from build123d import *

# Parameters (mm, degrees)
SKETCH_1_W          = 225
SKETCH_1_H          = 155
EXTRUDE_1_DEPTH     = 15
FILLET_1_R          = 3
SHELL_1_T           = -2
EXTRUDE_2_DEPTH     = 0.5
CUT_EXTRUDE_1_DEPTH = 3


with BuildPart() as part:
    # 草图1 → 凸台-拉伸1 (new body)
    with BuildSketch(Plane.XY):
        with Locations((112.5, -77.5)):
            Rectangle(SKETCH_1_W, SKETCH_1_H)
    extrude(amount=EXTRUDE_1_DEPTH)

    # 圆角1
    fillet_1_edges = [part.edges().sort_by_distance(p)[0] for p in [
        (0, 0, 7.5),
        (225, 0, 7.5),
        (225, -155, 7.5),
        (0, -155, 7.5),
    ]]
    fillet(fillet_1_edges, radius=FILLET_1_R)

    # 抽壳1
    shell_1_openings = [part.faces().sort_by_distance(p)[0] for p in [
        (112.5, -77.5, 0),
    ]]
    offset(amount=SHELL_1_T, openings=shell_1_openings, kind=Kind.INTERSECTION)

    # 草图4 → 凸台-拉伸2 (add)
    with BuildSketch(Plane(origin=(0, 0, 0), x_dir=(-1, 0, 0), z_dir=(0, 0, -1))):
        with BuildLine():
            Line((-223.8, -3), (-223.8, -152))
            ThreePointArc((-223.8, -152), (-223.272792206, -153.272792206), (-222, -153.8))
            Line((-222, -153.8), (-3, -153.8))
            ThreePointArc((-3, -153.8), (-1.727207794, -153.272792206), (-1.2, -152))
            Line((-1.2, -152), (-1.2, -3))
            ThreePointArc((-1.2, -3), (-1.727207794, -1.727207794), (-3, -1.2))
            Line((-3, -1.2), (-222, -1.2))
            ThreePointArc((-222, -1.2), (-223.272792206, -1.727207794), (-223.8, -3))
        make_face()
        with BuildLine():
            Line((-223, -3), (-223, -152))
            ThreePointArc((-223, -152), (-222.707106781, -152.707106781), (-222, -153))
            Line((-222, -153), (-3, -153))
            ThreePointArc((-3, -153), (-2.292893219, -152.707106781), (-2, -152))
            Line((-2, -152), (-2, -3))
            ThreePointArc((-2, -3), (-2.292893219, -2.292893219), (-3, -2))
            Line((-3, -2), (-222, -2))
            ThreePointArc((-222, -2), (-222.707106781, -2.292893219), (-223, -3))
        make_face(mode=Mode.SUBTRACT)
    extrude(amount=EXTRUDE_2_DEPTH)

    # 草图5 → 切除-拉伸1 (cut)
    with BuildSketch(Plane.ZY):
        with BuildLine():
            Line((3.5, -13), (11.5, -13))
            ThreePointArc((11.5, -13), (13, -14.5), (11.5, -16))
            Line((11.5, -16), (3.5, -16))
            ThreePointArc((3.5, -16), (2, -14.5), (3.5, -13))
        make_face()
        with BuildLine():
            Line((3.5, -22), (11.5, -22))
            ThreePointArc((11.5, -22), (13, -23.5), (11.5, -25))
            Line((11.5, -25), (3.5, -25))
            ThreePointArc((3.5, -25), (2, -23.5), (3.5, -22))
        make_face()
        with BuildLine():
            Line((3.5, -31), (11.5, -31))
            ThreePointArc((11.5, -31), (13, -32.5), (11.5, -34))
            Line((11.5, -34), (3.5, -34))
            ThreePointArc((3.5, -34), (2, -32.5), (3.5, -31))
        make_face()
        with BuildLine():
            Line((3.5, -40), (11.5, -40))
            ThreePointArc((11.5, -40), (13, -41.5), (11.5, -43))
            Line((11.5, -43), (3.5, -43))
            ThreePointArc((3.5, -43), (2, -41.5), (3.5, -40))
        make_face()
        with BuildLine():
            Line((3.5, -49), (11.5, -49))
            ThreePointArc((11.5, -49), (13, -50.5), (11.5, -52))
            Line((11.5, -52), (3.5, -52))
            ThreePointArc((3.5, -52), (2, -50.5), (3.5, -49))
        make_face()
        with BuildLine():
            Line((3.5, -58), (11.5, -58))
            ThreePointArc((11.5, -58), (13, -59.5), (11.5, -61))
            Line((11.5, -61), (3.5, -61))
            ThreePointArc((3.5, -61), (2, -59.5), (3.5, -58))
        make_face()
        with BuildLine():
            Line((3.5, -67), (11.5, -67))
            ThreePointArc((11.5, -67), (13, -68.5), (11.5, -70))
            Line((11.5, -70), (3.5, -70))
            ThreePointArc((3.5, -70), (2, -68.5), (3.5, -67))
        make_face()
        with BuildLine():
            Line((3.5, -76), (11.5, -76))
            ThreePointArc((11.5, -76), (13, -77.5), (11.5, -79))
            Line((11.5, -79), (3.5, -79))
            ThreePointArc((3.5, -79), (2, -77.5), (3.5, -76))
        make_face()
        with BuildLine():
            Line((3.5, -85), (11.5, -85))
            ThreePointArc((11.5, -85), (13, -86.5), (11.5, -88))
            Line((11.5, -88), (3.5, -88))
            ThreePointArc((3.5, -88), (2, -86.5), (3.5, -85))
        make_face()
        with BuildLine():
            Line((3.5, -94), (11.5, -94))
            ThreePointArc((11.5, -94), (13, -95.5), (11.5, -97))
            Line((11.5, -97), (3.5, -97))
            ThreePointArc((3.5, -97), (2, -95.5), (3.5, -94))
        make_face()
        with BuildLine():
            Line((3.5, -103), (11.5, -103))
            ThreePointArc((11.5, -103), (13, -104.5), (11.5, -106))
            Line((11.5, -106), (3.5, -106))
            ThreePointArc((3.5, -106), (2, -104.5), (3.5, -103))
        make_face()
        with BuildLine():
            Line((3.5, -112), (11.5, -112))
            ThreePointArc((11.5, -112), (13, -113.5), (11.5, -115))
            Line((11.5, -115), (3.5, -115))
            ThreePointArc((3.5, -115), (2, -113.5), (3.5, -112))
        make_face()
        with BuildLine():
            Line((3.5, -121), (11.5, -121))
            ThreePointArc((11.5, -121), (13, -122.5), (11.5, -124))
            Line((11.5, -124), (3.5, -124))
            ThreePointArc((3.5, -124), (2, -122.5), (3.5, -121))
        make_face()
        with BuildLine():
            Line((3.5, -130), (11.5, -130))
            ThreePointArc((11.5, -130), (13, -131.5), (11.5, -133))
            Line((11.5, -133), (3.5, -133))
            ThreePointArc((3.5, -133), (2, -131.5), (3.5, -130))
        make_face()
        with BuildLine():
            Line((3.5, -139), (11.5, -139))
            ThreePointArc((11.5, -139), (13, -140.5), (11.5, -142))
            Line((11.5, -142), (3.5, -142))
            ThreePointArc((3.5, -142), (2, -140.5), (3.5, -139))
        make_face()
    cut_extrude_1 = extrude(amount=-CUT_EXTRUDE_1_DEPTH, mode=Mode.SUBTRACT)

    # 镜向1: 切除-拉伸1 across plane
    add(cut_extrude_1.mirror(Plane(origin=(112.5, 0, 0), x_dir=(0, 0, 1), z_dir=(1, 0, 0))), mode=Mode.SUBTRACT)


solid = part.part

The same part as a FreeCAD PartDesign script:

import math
import FreeCAD as App
import Part
import Sketcher
from FreeCAD import Vector
Q = App.Units.Quantity


def edges_at(feature, points):
    """Names of the edges that pass closest to the given points."""
    edges = feature.Shape.Edges
    near = lambda p: min(range(len(edges)), key=lambda i: edges[i].distToShape(Part.Vertex(*p))[0])
    return sorted({f"Edge{near(p) + 1}" for p in points})


def faces_at(feature, points):
    """Names of the faces that lie closest to the given points."""
    faces = feature.Shape.Faces
    near = lambda p: min(range(len(faces)), key=lambda i: faces[i].distToShape(Part.Vertex(*p))[0])
    return sorted({f"Face{near(p) + 1}" for p in points})

doc = App.newDocument("Part")
params = doc.addObject("Spreadsheet::Sheet", "Params")
for row, (alias, value) in enumerate([
    ("sketch1_width", "225 mm"),
    ("sketch1_height", "155 mm"),
    ("pad1_length", "15 mm"),
    ("fillet_radius", "3 mm"),
    ("thickness_wall", "2 mm"),
    ("sketch2_radius", "1 mm"),
    ("sketch2_radius2", "1.8 mm"),
    ("sketch2_width", "219 mm"),
    ("sketch2_height", "149 mm"),
    ("pad2_length", "0.5 mm"),
    ("sketch3_radius", "1.5 mm"),
    ("sketch3_height", "8 mm"),
    ("pocket1_length", "3 mm"),
], start=1):
    params.set(f"A{row}", alias)
    params.set(f"B{row}", "=" + value)
    params.setAlias(f"B{row}", alias)

body = doc.addObject("PartDesign::Body", "Body")

sketch1 = doc.addObject("Sketcher::SketchObject", "Sketch")
body.addObject(sketch1)
sketch1.AttachmentSupport = (doc.XY_Plane, [""])
sketch1.MapMode = "FlatFace"
sketch1.addGeometry(Part.LineSegment(Vector(0, 0, 0), Vector(0, -155, 0)), False)
sketch1.addGeometry(Part.LineSegment(Vector(0, -155, 0), Vector(225, -155, 0)), False)
sketch1.addGeometry(Part.LineSegment(Vector(225, -155, 0), Vector(225, 0, 0)), False)
sketch1.addGeometry(Part.LineSegment(Vector(225, 0, 0), Vector(0, 0, 0)), False)
sketch1.addConstraint(Sketcher.Constraint("Coincident", 0, 2, 1, 1))
sketch1.addConstraint(Sketcher.Constraint("Coincident", 1, 2, 2, 1))
sketch1.addConstraint(Sketcher.Constraint("Coincident", 2, 2, 3, 1))
sketch1.addConstraint(Sketcher.Constraint("Coincident", 3, 2, 0, 1))
sketch1.addConstraint(Sketcher.Constraint("Vertical", 0))
sketch1.addConstraint(Sketcher.Constraint("Horizontal", 1))
sketch1.addConstraint(Sketcher.Constraint("Vertical", 2))
sketch1.addConstraint(Sketcher.Constraint("Horizontal", 3))
sketch1.addConstraint(Sketcher.Constraint("Coincident", 3, 2, -1, 1))
sketch1.addConstraint(Sketcher.Constraint("DistanceX", 1, 1, 1, 2, Q("225 mm")))
sketch1.addConstraint(Sketcher.Constraint("DistanceY", 0, 2, 0, 1, Q("155 mm")))
sketch1.setExpression("Constraints[9]", "Params.sketch1_width")
sketch1.setExpression("Constraints[10]", "Params.sketch1_height")
pad1 = doc.addObject("PartDesign::Pad", "Pad")
body.addObject(pad1)
pad1.Profile = sketch1
pad1.setExpression("Length", "Params.pad1_length")
doc.recompute()

fillet = doc.addObject("PartDesign::Fillet", "Fillet")
body.addObject(fillet)
fillet.Base = (pad1, edges_at(pad1, [
    (0, 0, 7.5),
    (225, 0, 7.5),
    (225, -155, 7.5),
    (0, -155, 7.5),
]))
fillet.setExpression("Radius", "Params.fillet_radius")
doc.recompute()

thickness = doc.addObject("PartDesign::Thickness", "Thickness")
body.addObject(thickness)
thickness.Base = (fillet, faces_at(fillet, [(112.5, -77.5, 0)]))
thickness.setExpression("Value", "Params.thickness_wall")
thickness.Reversed = True
thickness.Join = "Intersection"

sketch2 = doc.addObject("Sketcher::SketchObject", "Sketch001")
body.addObject(sketch2)
sketch2.AttachmentSupport = (doc.XY_Plane, [""])
sketch2.MapMode = "FlatFace"
sketch2.addGeometry(Part.LineSegment(Vector(223.8, -3, 0), Vector(223.8, -152, 0)), False)
sketch2.addGeometry(Part.ArcOfCircle(Part.Circle(Vector(222, -152, 0), Vector(0, 0, 1), 1.8), math.radians(-90), math.radians(0)), False)
sketch2.addGeometry(Part.LineSegment(Vector(222, -153.8, 0), Vector(3, -153.8, 0)), False)
sketch2.addGeometry(Part.ArcOfCircle(Part.Circle(Vector(3, -152, 0), Vector(0, 0, 1), 1.8), math.radians(180), math.radians(270)), False)
sketch2.addGeometry(Part.LineSegment(Vector(1.2, -152, 0), Vector(1.2, -3, 0)), False)
sketch2.addGeometry(Part.ArcOfCircle(Part.Circle(Vector(3, -3, 0), Vector(0, 0, 1), 1.8), math.radians(90), math.radians(180)), False)
sketch2.addGeometry(Part.LineSegment(Vector(3, -1.2, 0), Vector(222, -1.2, 0)), False)
sketch2.addGeometry(Part.ArcOfCircle(Part.Circle(Vector(222, -3, 0), Vector(0, 0, 1), 1.8), math.radians(0), math.radians(90)), False)
sketch2.addGeometry(Part.LineSegment(Vector(223, -152, 0), Vector(223, -3, 0)), False)
sketch2.addGeometry(Part.ArcOfCircle(Part.Circle(Vector(222, -3, 0), Vector(0, 0, 1), 1), math.radians(0), math.radians(90)), False)
sketch2.addGeometry(Part.LineSegment(Vector(222, -2, 0), Vector(3, -2, 0)), False)
sketch2.addGeometry(Part.ArcOfCircle(Part.Circle(Vector(3, -3, 0), Vector(0, 0, 1), 1), math.radians(90), math.radians(180)), False)
sketch2.addGeometry(Part.LineSegment(Vector(2, -3, 0), Vector(2, -152, 0)), False)
sketch2.addGeometry(Part.ArcOfCircle(Part.Circle(Vector(3, -152, 0), Vector(0, 0, 1), 1), math.radians(-180), math.radians(-90)), False)
sketch2.addGeometry(Part.LineSegment(Vector(3, -153, 0), Vector(222, -153, 0)), False)
sketch2.addGeometry(Part.ArcOfCircle(Part.Circle(Vector(222, -152, 0), Vector(0, 0, 1), 1), math.radians(-90), math.radians(0)), False)
sketch2.addConstraint(Sketcher.Constraint("Tangent", 0, 2, 1, 2))
sketch2.addConstraint(Sketcher.Constraint("Tangent", 1, 1, 2, 1))
sketch2.addConstraint(Sketcher.Constraint("Tangent", 2, 2, 3, 2))
sketch2.addConstraint(Sketcher.Constraint("Tangent", 3, 1, 4, 1))
sketch2.addConstraint(Sketcher.Constraint("Tangent", 4, 2, 5, 2))
sketch2.addConstraint(Sketcher.Constraint("Tangent", 5, 1, 6, 1))
sketch2.addConstraint(Sketcher.Constraint("Tangent", 6, 2, 7, 2))
sketch2.addConstraint(Sketcher.Constraint("Tangent", 7, 1, 0, 1))
sketch2.addConstraint(Sketcher.Constraint("Tangent", 8, 2, 9, 1))
sketch2.addConstraint(Sketcher.Constraint("Tangent", 9, 2, 10, 1))
sketch2.addConstraint(Sketcher.Constraint("Tangent", 10, 2, 11, 1))
sketch2.addConstraint(Sketcher.Constraint("Tangent", 11, 2, 12, 1))
sketch2.addConstraint(Sketcher.Constraint("Tangent", 12, 2, 13, 1))
sketch2.addConstraint(Sketcher.Constraint("Tangent", 13, 2, 14, 1))
sketch2.addConstraint(Sketcher.Constraint("Tangent", 14, 2, 15, 1))
sketch2.addConstraint(Sketcher.Constraint("Tangent", 15, 2, 8, 1))
sketch2.addConstraint(Sketcher.Constraint("Vertical", 0))
sketch2.addConstraint(Sketcher.Constraint("Horizontal", 2))
sketch2.addConstraint(Sketcher.Constraint("Vertical", 4))
sketch2.addConstraint(Sketcher.Constraint("Horizontal", 6))
sketch2.addConstraint(Sketcher.Constraint("Vertical", 8))
sketch2.addConstraint(Sketcher.Constraint("Horizontal", 10))
sketch2.addConstraint(Sketcher.Constraint("Vertical", 12))
sketch2.addConstraint(Sketcher.Constraint("Horizontal", 14))
sketch2.addConstraint(Sketcher.Constraint("Coincident", 9, 3, 7, 3))
sketch2.addConstraint(Sketcher.Constraint("Coincident", 11, 3, 5, 3))
sketch2.addConstraint(Sketcher.Constraint("Coincident", 13, 3, 3, 3))
sketch2.addConstraint(Sketcher.Constraint("Equal", 1, 3))
sketch2.addConstraint(Sketcher.Constraint("Equal", 3, 5))
sketch2.addConstraint(Sketcher.Constraint("Equal", 5, 7))
sketch2.addConstraint(Sketcher.Constraint("Equal", 13, 15))
sketch2.addConstraint(Sketcher.Constraint("Radius", 9, Q("1 mm")))
sketch2.addConstraint(Sketcher.Constraint("Radius", 1, Q("1.8 mm")))
sketch2.addConstraint(Sketcher.Constraint("DistanceX", 2, 2, 2, 1, Q("219 mm")))
sketch2.addConstraint(Sketcher.Constraint("DistanceY", 0, 2, 0, 1, Q("149 mm")))
sketch2.addConstraint(Sketcher.Constraint("DistanceX", -1, 1, 1, 3, Q("222 mm")))
sketch2.addConstraint(Sketcher.Constraint("DistanceY", 1, 3, -1, 1, Q("152 mm")))
sketch2.setExpression("Constraints[31]", "Params.sketch2_radius")
sketch2.setExpression("Constraints[32]", "Params.sketch2_radius2")
sketch2.setExpression("Constraints[33]", "Params.sketch2_width")
sketch2.setExpression("Constraints[34]", "Params.sketch2_height")
pad2 = doc.addObject("PartDesign::Pad", "Pad001")
body.addObject(pad2)
pad2.Profile = sketch2
pad2.setExpression("Length", "Params.pad2_length")
pad2.Reversed = True

sketch3 = doc.addObject("Sketcher::SketchObject", "Sketch002")
body.addObject(sketch3)
sketch3.AttachmentSupport = (doc.YZ_Plane, [""])
sketch3.MapMode = "FlatFace"
sketch3.addGeometry(Part.LineSegment(Vector(-13, 11.5, 0), Vector(-13, 3.5, 0)), False)
sketch3.addGeometry(Part.ArcOfCircle(Part.Circle(Vector(-14.5, 3.5, 0), Vector(0, 0, 1), 1.5), math.radians(180), math.radians(360)), False)
sketch3.addGeometry(Part.LineSegment(Vector(-16, 3.5, 0), Vector(-16, 11.5, 0)), False)
sketch3.addGeometry(Part.ArcOfCircle(Part.Circle(Vector(-14.5, 11.5, 0), Vector(0, 0, 1), 1.5), math.radians(0), math.radians(180)), False)
sketch3.addGeometry(Part.LineSegment(Vector(-22, 11.5, 0), Vector(-22, 3.5, 0)), False)
sketch3.addGeometry(Part.ArcOfCircle(Part.Circle(Vector(-23.5, 3.5, 0), Vector(0, 0, 1), 1.5), math.radians(180), math.radians(360)), False)
sketch3.addGeometry(Part.LineSegment(Vector(-25, 3.5, 0), Vector(-25, 11.5, 0)), False)
sketch3.addGeometry(Part.ArcOfCircle(Part.Circle(Vector(-23.5, 11.5, 0), Vector(0, 0, 1), 1.5), math.radians(0), math.radians(180)), False)
sketch3.addGeometry(Part.LineSegment(Vector(-31, 11.5, 0), Vector(-31, 3.5, 0)), False)
sketch3.addGeometry(Part.ArcOfCircle(Part.Circle(Vector(-32.5, 3.5, 0), Vector(0, 0, 1), 1.5), math.radians(180), math.radians(360)), False)
sketch3.addGeometry(Part.LineSegment(Vector(-34, 3.5, 0), Vector(-34, 11.5, 0)), False)
sketch3.addGeometry(Part.ArcOfCircle(Part.Circle(Vector(-32.5, 11.5, 0), Vector(0, 0, 1), 1.5), math.radians(0), math.radians(180)), False)
sketch3.addGeometry(Part.LineSegment(Vector(-40, 11.5, 0), Vector(-40, 3.5, 0)), False)
sketch3.addGeometry(Part.ArcOfCircle(Part.Circle(Vector(-41.5, 3.5, 0), Vector(0, 0, 1), 1.5), math.radians(180), math.radians(360)), False)
sketch3.addGeometry(Part.LineSegment(Vector(-43, 3.5, 0), Vector(-43, 11.5, 0)), False)
sketch3.addGeometry(Part.ArcOfCircle(Part.Circle(Vector(-41.5, 11.5, 0), Vector(0, 0, 1), 1.5), math.radians(0), math.radians(180)), False)
sketch3.addGeometry(Part.LineSegment(Vector(-49, 11.5, 0), Vector(-49, 3.5, 0)), False)
sketch3.addGeometry(Part.ArcOfCircle(Part.Circle(Vector(-50.5, 3.5, 0), Vector(0, 0, 1), 1.5), math.radians(180), math.radians(360)), False)
sketch3.addGeometry(Part.LineSegment(Vector(-52, 3.5, 0), Vector(-52, 11.5, 0)), False)
sketch3.addGeometry(Part.ArcOfCircle(Part.Circle(Vector(-50.5, 11.5, 0), Vector(0, 0, 1), 1.5), math.radians(0), math.radians(180)), False)
sketch3.addGeometry(Part.LineSegment(Vector(-58, 11.5, 0), Vector(-58, 3.5, 0)), False)
sketch3.addGeometry(Part.ArcOfCircle(Part.Circle(Vector(-59.5, 3.5, 0), Vector(0, 0, 1), 1.5), math.radians(180), math.radians(360)), False)
sketch3.addGeometry(Part.LineSegment(Vector(-61, 3.5, 0), Vector(-61, 11.5, 0)), False)
sketch3.addGeometry(Part.ArcOfCircle(Part.Circle(Vector(-59.5, 11.5, 0), Vector(0, 0, 1), 1.5), math.radians(0), math.radians(180)), False)
sketch3.addGeometry(Part.LineSegment(Vector(-67, 11.5, 0), Vector(-67, 3.5, 0)), False)
sketch3.addGeometry(Part.ArcOfCircle(Part.Circle(Vector(-68.5, 3.5, 0), Vector(0, 0, 1), 1.5), math.radians(180), math.radians(360)), False)
sketch3.addGeometry(Part.LineSegment(Vector(-70, 3.5, 0), Vector(-70, 11.5, 0)), False)
sketch3.addGeometry(Part.ArcOfCircle(Part.Circle(Vector(-68.5, 11.5, 0), Vector(0, 0, 1), 1.5), math.radians(0), math.radians(180)), False)
sketch3.addGeometry(Part.LineSegment(Vector(-76, 11.5, 0), Vector(-76, 3.5, 0)), False)
sketch3.addGeometry(Part.ArcOfCircle(Part.Circle(Vector(-77.5, 3.5, 0), Vector(0, 0, 1), 1.5), math.radians(180), math.radians(360)), False)
sketch3.addGeometry(Part.LineSegment(Vector(-79, 3.5, 0), Vector(-79, 11.5, 0)), False)
sketch3.addGeometry(Part.ArcOfCircle(Part.Circle(Vector(-77.5, 11.5, 0), Vector(0, 0, 1), 1.5), math.radians(0), math.radians(180)), False)
sketch3.addGeometry(Part.LineSegment(Vector(-85, 11.5, 0), Vector(-85, 3.5, 0)), False)
sketch3.addGeometry(Part.ArcOfCircle(Part.Circle(Vector(-86.5, 3.5, 0), Vector(0, 0, 1), 1.5), math.radians(180), math.radians(360)), False)
sketch3.addGeometry(Part.LineSegment(Vector(-88, 3.5, 0), Vector(-88, 11.5, 0)), False)
sketch3.addGeometry(Part.ArcOfCircle(Part.Circle(Vector(-86.5, 11.5, 0), Vector(0, 0, 1), 1.5), math.radians(0), math.radians(180)), False)
sketch3.addGeometry(Part.LineSegment(Vector(-94, 11.5, 0), Vector(-94, 3.5, 0)), False)
sketch3.addGeometry(Part.ArcOfCircle(Part.Circle(Vector(-95.5, 3.5, 0), Vector(0, 0, 1), 1.5), math.radians(180), math.radians(360)), False)
sketch3.addGeometry(Part.LineSegment(Vector(-97, 3.5, 0), Vector(-97, 11.5, 0)), False)
sketch3.addGeometry(Part.ArcOfCircle(Part.Circle(Vector(-95.5, 11.5, 0), Vector(0, 0, 1), 1.5), math.radians(0), math.radians(180)), False)
sketch3.addGeometry(Part.LineSegment(Vector(-103, 11.5, 0), Vector(-103, 3.5, 0)), False)
sketch3.addGeometry(Part.ArcOfCircle(Part.Circle(Vector(-104.5, 3.5, 0), Vector(0, 0, 1), 1.5), math.radians(180), math.radians(360)), False)
sketch3.addGeometry(Part.LineSegment(Vector(-106, 3.5, 0), Vector(-106, 11.5, 0)), False)
sketch3.addGeometry(Part.ArcOfCircle(Part.Circle(Vector(-104.5, 11.5, 0), Vector(0, 0, 1), 1.5), math.radians(0), math.radians(180)), False)
sketch3.addGeometry(Part.LineSegment(Vector(-112, 11.5, 0), Vector(-112, 3.5, 0)), False)
sketch3.addGeometry(Part.ArcOfCircle(Part.Circle(Vector(-113.5, 3.5, 0), Vector(0, 0, 1), 1.5), math.radians(180), math.radians(360)), False)
sketch3.addGeometry(Part.LineSegment(Vector(-115, 3.5, 0), Vector(-115, 11.5, 0)), False)
sketch3.addGeometry(Part.ArcOfCircle(Part.Circle(Vector(-113.5, 11.5, 0), Vector(0, 0, 1), 1.5), math.radians(0), math.radians(180)), False)
sketch3.addGeometry(Part.LineSegment(Vector(-121, 11.5, 0), Vector(-121, 3.5, 0)), False)
sketch3.addGeometry(Part.ArcOfCircle(Part.Circle(Vector(-122.5, 3.5, 0), Vector(0, 0, 1), 1.5), math.radians(180), math.radians(360)), False)
sketch3.addGeometry(Part.LineSegment(Vector(-124, 3.5, 0), Vector(-124, 11.5, 0)), False)
sketch3.addGeometry(Part.ArcOfCircle(Part.Circle(Vector(-122.5, 11.5, 0), Vector(0, 0, 1), 1.5), math.radians(0), math.radians(180)), False)
sketch3.addGeometry(Part.LineSegment(Vector(-130, 11.5, 0), Vector(-130, 3.5, 0)), False)
sketch3.addGeometry(Part.ArcOfCircle(Part.Circle(Vector(-131.5, 3.5, 0), Vector(0, 0, 1), 1.5), math.radians(180), math.radians(360)), False)
sketch3.addGeometry(Part.LineSegment(Vector(-133, 3.5, 0), Vector(-133, 11.5, 0)), False)
sketch3.addGeometry(Part.ArcOfCircle(Part.Circle(Vector(-131.5, 11.5, 0), Vector(0, 0, 1), 1.5), math.radians(0), math.radians(180)), False)
sketch3.addGeometry(Part.LineSegment(Vector(-139, 11.5, 0), Vector(-139, 3.5, 0)), False)
sketch3.addGeometry(Part.ArcOfCircle(Part.Circle(Vector(-140.5, 3.5, 0), Vector(0, 0, 1), 1.5), math.radians(180), math.radians(360)), False)
sketch3.addGeometry(Part.LineSegment(Vector(-142, 3.5, 0), Vector(-142, 11.5, 0)), False)
sketch3.addGeometry(Part.ArcOfCircle(Part.Circle(Vector(-140.5, 11.5, 0), Vector(0, 0, 1), 1.5), math.radians(0), math.radians(180)), False)
sketch3.addConstraint(Sketcher.Constraint("Tangent", 0, 2, 1, 2))
sketch3.addConstraint(Sketcher.Constraint("Tangent", 1, 1, 2, 1))
sketch3.addConstraint(Sketcher.Constraint("Tangent", 2, 2, 3, 2))
sketch3.addConstraint(Sketcher.Constraint("Tangent", 3, 1, 0, 1))
sketch3.addConstraint(Sketcher.Constraint("Tangent", 4, 2, 5, 2))
sketch3.addConstraint(Sketcher.Constraint("Tangent", 5, 1, 6, 1))
sketch3.addConstraint(Sketcher.Constraint("Tangent", 6, 2, 7, 2))
sketch3.addConstraint(Sketcher.Constraint("Tangent", 7, 1, 4, 1))
sketch3.addConstraint(Sketcher.Constraint("Tangent", 8, 2, 9, 2))
sketch3.addConstraint(Sketcher.Constraint("Tangent", 9, 1, 10, 1))
sketch3.addConstraint(Sketcher.Constraint("Tangent", 10, 2, 11, 2))
sketch3.addConstraint(Sketcher.Constraint("Tangent", 11, 1, 8, 1))
sketch3.addConstraint(Sketcher.Constraint("Tangent", 12, 2, 13, 2))
sketch3.addConstraint(Sketcher.Constraint("Tangent", 13, 1, 14, 1))
sketch3.addConstraint(Sketcher.Constraint("Tangent", 14, 2, 15, 2))
sketch3.addConstraint(Sketcher.Constraint("Tangent", 15, 1, 12, 1))
sketch3.addConstraint(Sketcher.Constraint("Tangent", 16, 2, 17, 2))
sketch3.addConstraint(Sketcher.Constraint("Tangent", 17, 1, 18, 1))
sketch3.addConstraint(Sketcher.Constraint("Tangent", 18, 2, 19, 2))
sketch3.addConstraint(Sketcher.Constraint("Tangent", 19, 1, 16, 1))
sketch3.addConstraint(Sketcher.Constraint("Tangent", 20, 2, 21, 2))
sketch3.addConstraint(Sketcher.Constraint("Tangent", 21, 1, 22, 1))
sketch3.addConstraint(Sketcher.Constraint("Tangent", 22, 2, 23, 2))
sketch3.addConstraint(Sketcher.Constraint("Tangent", 23, 1, 20, 1))
sketch3.addConstraint(Sketcher.Constraint("Tangent", 24, 2, 25, 2))
sketch3.addConstraint(Sketcher.Constraint("Tangent", 25, 1, 26, 1))
sketch3.addConstraint(Sketcher.Constraint("Tangent", 26, 2, 27, 2))
sketch3.addConstraint(Sketcher.Constraint("Tangent", 27, 1, 24, 1))
sketch3.addConstraint(Sketcher.Constraint("Tangent", 28, 2, 29, 2))
sketch3.addConstraint(Sketcher.Constraint("Tangent", 29, 1, 30, 1))
sketch3.addConstraint(Sketcher.Constraint("Tangent", 30, 2, 31, 2))
sketch3.addConstraint(Sketcher.Constraint("Tangent", 31, 1, 28, 1))
sketch3.addConstraint(Sketcher.Constraint("Tangent", 32, 2, 33, 2))
sketch3.addConstraint(Sketcher.Constraint("Tangent", 33, 1, 34, 1))
sketch3.addConstraint(Sketcher.Constraint("Tangent", 34, 2, 35, 2))
sketch3.addConstraint(Sketcher.Constraint("Tangent", 35, 1, 32, 1))
sketch3.addConstraint(Sketcher.Constraint("Tangent", 36, 2, 37, 2))
sketch3.addConstraint(Sketcher.Constraint("Tangent", 37, 1, 38, 1))
sketch3.addConstraint(Sketcher.Constraint("Tangent", 38, 2, 39, 2))
sketch3.addConstraint(Sketcher.Constraint("Tangent", 39, 1, 36, 1))
sketch3.addConstraint(Sketcher.Constraint("Tangent", 40, 2, 41, 2))
sketch3.addConstraint(Sketcher.Constraint("Tangent", 41, 1, 42, 1))
sketch3.addConstraint(Sketcher.Constraint("Tangent", 42, 2, 43, 2))
sketch3.addConstraint(Sketcher.Constraint("Tangent", 43, 1, 40, 1))
sketch3.addConstraint(Sketcher.Constraint("Tangent", 44, 2, 45, 2))
sketch3.addConstraint(Sketcher.Constraint("Tangent", 45, 1, 46, 1))
sketch3.addConstraint(Sketcher.Constraint("Tangent", 46, 2, 47, 2))
sketch3.addConstraint(Sketcher.Constraint("Tangent", 47, 1, 44, 1))
sketch3.addConstraint(Sketcher.Constraint("Tangent", 48, 2, 49, 2))
sketch3.addConstraint(Sketcher.Constraint("Tangent", 49, 1, 50, 1))
sketch3.addConstraint(Sketcher.Constraint("Tangent", 50, 2, 51, 2))
sketch3.addConstraint(Sketcher.Constraint("Tangent", 51, 1, 48, 1))
sketch3.addConstraint(Sketcher.Constraint("Tangent", 52, 2, 53, 2))
sketch3.addConstraint(Sketcher.Constraint("Tangent", 53, 1, 54, 1))
sketch3.addConstraint(Sketcher.Constraint("Tangent", 54, 2, 55, 2))
sketch3.addConstraint(Sketcher.Constraint("Tangent", 55, 1, 52, 1))
sketch3.addConstraint(Sketcher.Constraint("Tangent", 56, 2, 57, 2))
sketch3.addConstraint(Sketcher.Constraint("Tangent", 57, 1, 58, 1))
sketch3.addConstraint(Sketcher.Constraint("Tangent", 58, 2, 59, 2))
sketch3.addConstraint(Sketcher.Constraint("Tangent", 59, 1, 56, 1))
sketch3.addConstraint(Sketcher.Constraint("Vertical", 0))
sketch3.addConstraint(Sketcher.Constraint("Vertical", 2))
sketch3.addConstraint(Sketcher.Constraint("Vertical", 4))
sketch3.addConstraint(Sketcher.Constraint("Vertical", 6))
sketch3.addConstraint(Sketcher.Constraint("Vertical", 8))
sketch3.addConstraint(Sketcher.Constraint("Vertical", 10))
sketch3.addConstraint(Sketcher.Constraint("Vertical", 12))
sketch3.addConstraint(Sketcher.Constraint("Vertical", 14))
sketch3.addConstraint(Sketcher.Constraint("Vertical", 16))
sketch3.addConstraint(Sketcher.Constraint("Vertical", 18))
sketch3.addConstraint(Sketcher.Constraint("Vertical", 20))
sketch3.addConstraint(Sketcher.Constraint("Vertical", 22))
sketch3.addConstraint(Sketcher.Constraint("Vertical", 24))
sketch3.addConstraint(Sketcher.Constraint("Vertical", 26))
sketch3.addConstraint(Sketcher.Constraint("Vertical", 28))
sketch3.addConstraint(Sketcher.Constraint("Vertical", 30))
sketch3.addConstraint(Sketcher.Constraint("Vertical", 32))
sketch3.addConstraint(Sketcher.Constraint("Vertical", 34))
sketch3.addConstraint(Sketcher.Constraint("Vertical", 36))
sketch3.addConstraint(Sketcher.Constraint("Vertical", 38))
sketch3.addConstraint(Sketcher.Constraint("Vertical", 40))
sketch3.addConstraint(Sketcher.Constraint("Vertical", 42))
sketch3.addConstraint(Sketcher.Constraint("Vertical", 44))
sketch3.addConstraint(Sketcher.Constraint("Vertical", 46))
sketch3.addConstraint(Sketcher.Constraint("Vertical", 48))
sketch3.addConstraint(Sketcher.Constraint("Vertical", 50))
sketch3.addConstraint(Sketcher.Constraint("Vertical", 52))
sketch3.addConstraint(Sketcher.Constraint("Vertical", 54))
sketch3.addConstraint(Sketcher.Constraint("Vertical", 56))
sketch3.addConstraint(Sketcher.Constraint("Vertical", 58))
sketch3.addConstraint(Sketcher.Constraint("Equal", 3, 5))
sketch3.addConstraint(Sketcher.Constraint("Equal", 7, 9))
sketch3.addConstraint(Sketcher.Constraint("Equal", 11, 13))
sketch3.addConstraint(Sketcher.Constraint("Equal", 15, 17))
sketch3.addConstraint(Sketcher.Constraint("Equal", 19, 21))
sketch3.addConstraint(Sketcher.Constraint("Equal", 23, 25))
sketch3.addConstraint(Sketcher.Constraint("Equal", 27, 29))
sketch3.addConstraint(Sketcher.Constraint("Equal", 31, 33))
sketch3.addConstraint(Sketcher.Constraint("Equal", 35, 37))
sketch3.addConstraint(Sketcher.Constraint("Equal", 39, 41))
sketch3.addConstraint(Sketcher.Constraint("Equal", 43, 45))
sketch3.addConstraint(Sketcher.Constraint("Equal", 47, 49))
sketch3.addConstraint(Sketcher.Constraint("Equal", 51, 53))
sketch3.addConstraint(Sketcher.Constraint("Equal", 55, 57))
sketch3.addConstraint(Sketcher.Constraint("Horizontal", 1, 3, 5, 3))
sketch3.addConstraint(Sketcher.Constraint("Horizontal", 3, 3, 7, 3))
sketch3.addConstraint(Sketcher.Constraint("Horizontal", 5, 3, 9, 3))
sketch3.addConstraint(Sketcher.Constraint("Horizontal", 7, 3, 11, 3))
sketch3.addConstraint(Sketcher.Constraint("Horizontal", 9, 3, 13, 3))
sketch3.addConstraint(Sketcher.Constraint("Horizontal", 11, 3, 15, 3))
sketch3.addConstraint(Sketcher.Constraint("Horizontal", 13, 3, 17, 3))
sketch3.addConstraint(Sketcher.Constraint("Horizontal", 15, 3, 19, 3))
sketch3.addConstraint(Sketcher.Constraint("Horizontal", 17, 3, 21, 3))
sketch3.addConstraint(Sketcher.Constraint("Horizontal", 19, 3, 23, 3))
sketch3.addConstraint(Sketcher.Constraint("Horizontal", 21, 3, 25, 3))
sketch3.addConstraint(Sketcher.Constraint("Horizontal", 23, 3, 27, 3))
sketch3.addConstraint(Sketcher.Constraint("Horizontal", 25, 3, 29, 3))
sketch3.addConstraint(Sketcher.Constraint("Horizontal", 27, 3, 31, 3))
sketch3.addConstraint(Sketcher.Constraint("Horizontal", 29, 3, 33, 3))
sketch3.addConstraint(Sketcher.Constraint("Horizontal", 31, 3, 35, 3))
sketch3.addConstraint(Sketcher.Constraint("Horizontal", 33, 3, 37, 3))
sketch3.addConstraint(Sketcher.Constraint("Horizontal", 35, 3, 39, 3))
sketch3.addConstraint(Sketcher.Constraint("Horizontal", 37, 3, 41, 3))
sketch3.addConstraint(Sketcher.Constraint("Horizontal", 39, 3, 43, 3))
sketch3.addConstraint(Sketcher.Constraint("Horizontal", 41, 3, 45, 3))
sketch3.addConstraint(Sketcher.Constraint("Horizontal", 43, 3, 47, 3))
sketch3.addConstraint(Sketcher.Constraint("Horizontal", 45, 3, 49, 3))
sketch3.addConstraint(Sketcher.Constraint("Horizontal", 47, 3, 51, 3))
sketch3.addConstraint(Sketcher.Constraint("Horizontal", 49, 3, 53, 3))
sketch3.addConstraint(Sketcher.Constraint("Horizontal", 51, 3, 55, 3))
sketch3.addConstraint(Sketcher.Constraint("Horizontal", 53, 3, 57, 3))
sketch3.addConstraint(Sketcher.Constraint("Horizontal", 55, 3, 59, 3))
sketch3.addConstraint(Sketcher.Constraint("Radius", 1, Q("1.5 mm")))
sketch3.addConstraint(Sketcher.Constraint("DistanceY", 0, 2, 0, 1, Q("8 mm")))
sketch3.addConstraint(Sketcher.Constraint("DistanceX", 0, 2, -1, 1, Q("13 mm")))
sketch3.addConstraint(Sketcher.Constraint("DistanceX", 4, 2, -1, 1, Q("22 mm")))
sketch3.addConstraint(Sketcher.Constraint("DistanceX", 8, 2, -1, 1, Q("31 mm")))
sketch3.addConstraint(Sketcher.Constraint("DistanceX", 12, 2, -1, 1, Q("40 mm")))
sketch3.addConstraint(Sketcher.Constraint("DistanceX", 16, 2, -1, 1, Q("49 mm")))
sketch3.addConstraint(Sketcher.Constraint("DistanceX", 20, 2, -1, 1, Q("58 mm")))
sketch3.addConstraint(Sketcher.Constraint("DistanceX", 24, 2, -1, 1, Q("67 mm")))
sketch3.addConstraint(Sketcher.Constraint("DistanceX", 28, 2, -1, 1, Q("76 mm")))
sketch3.addConstraint(Sketcher.Constraint("DistanceX", 32, 2, -1, 1, Q("85 mm")))
sketch3.addConstraint(Sketcher.Constraint("DistanceX", 36, 2, -1, 1, Q("94 mm")))
sketch3.addConstraint(Sketcher.Constraint("DistanceX", 40, 2, -1, 1, Q("103 mm")))
sketch3.addConstraint(Sketcher.Constraint("DistanceX", 44, 2, -1, 1, Q("112 mm")))
sketch3.addConstraint(Sketcher.Constraint("DistanceX", 48, 2, -1, 1, Q("121 mm")))
sketch3.addConstraint(Sketcher.Constraint("DistanceX", 52, 2, -1, 1, Q("130 mm")))
sketch3.addConstraint(Sketcher.Constraint("DistanceX", 56, 2, -1, 1, Q("139 mm")))
sketch3.addConstraint(Sketcher.Constraint("DistanceY", -1, 1, 1, 3, Q("3.5 mm")))
sketch3.setExpression("Constraints[132]", "Params.sketch3_radius")
sketch3.setExpression("Constraints[133]", "Params.sketch3_height")
pocket1 = doc.addObject("PartDesign::Pocket", "Pocket")
body.addObject(pocket1)
pocket1.Profile = sketch3
pocket1.setExpression("Length", "Params.pocket1_length")
pocket1.Reversed = True
doc.recompute()

datumplane = doc.addObject("PartDesign::Plane", "DatumPlane")
body.addObject(datumplane)
datumplane.AttachmentSupport = (doc.YZ_Plane, [""])
datumplane.MapMode = "FlatFace"
datumplane.AttachmentOffset = App.Placement(Vector(0, 0, 112.5), App.Rotation())
mirrored = doc.addObject("PartDesign::Mirrored", "Mirrored")
body.addObject(mirrored)
mirrored.Originals = [pocket1]
mirrored.MirrorPlane = (datumplane, [""])
body.Tip = mirrored

doc.recompute()
